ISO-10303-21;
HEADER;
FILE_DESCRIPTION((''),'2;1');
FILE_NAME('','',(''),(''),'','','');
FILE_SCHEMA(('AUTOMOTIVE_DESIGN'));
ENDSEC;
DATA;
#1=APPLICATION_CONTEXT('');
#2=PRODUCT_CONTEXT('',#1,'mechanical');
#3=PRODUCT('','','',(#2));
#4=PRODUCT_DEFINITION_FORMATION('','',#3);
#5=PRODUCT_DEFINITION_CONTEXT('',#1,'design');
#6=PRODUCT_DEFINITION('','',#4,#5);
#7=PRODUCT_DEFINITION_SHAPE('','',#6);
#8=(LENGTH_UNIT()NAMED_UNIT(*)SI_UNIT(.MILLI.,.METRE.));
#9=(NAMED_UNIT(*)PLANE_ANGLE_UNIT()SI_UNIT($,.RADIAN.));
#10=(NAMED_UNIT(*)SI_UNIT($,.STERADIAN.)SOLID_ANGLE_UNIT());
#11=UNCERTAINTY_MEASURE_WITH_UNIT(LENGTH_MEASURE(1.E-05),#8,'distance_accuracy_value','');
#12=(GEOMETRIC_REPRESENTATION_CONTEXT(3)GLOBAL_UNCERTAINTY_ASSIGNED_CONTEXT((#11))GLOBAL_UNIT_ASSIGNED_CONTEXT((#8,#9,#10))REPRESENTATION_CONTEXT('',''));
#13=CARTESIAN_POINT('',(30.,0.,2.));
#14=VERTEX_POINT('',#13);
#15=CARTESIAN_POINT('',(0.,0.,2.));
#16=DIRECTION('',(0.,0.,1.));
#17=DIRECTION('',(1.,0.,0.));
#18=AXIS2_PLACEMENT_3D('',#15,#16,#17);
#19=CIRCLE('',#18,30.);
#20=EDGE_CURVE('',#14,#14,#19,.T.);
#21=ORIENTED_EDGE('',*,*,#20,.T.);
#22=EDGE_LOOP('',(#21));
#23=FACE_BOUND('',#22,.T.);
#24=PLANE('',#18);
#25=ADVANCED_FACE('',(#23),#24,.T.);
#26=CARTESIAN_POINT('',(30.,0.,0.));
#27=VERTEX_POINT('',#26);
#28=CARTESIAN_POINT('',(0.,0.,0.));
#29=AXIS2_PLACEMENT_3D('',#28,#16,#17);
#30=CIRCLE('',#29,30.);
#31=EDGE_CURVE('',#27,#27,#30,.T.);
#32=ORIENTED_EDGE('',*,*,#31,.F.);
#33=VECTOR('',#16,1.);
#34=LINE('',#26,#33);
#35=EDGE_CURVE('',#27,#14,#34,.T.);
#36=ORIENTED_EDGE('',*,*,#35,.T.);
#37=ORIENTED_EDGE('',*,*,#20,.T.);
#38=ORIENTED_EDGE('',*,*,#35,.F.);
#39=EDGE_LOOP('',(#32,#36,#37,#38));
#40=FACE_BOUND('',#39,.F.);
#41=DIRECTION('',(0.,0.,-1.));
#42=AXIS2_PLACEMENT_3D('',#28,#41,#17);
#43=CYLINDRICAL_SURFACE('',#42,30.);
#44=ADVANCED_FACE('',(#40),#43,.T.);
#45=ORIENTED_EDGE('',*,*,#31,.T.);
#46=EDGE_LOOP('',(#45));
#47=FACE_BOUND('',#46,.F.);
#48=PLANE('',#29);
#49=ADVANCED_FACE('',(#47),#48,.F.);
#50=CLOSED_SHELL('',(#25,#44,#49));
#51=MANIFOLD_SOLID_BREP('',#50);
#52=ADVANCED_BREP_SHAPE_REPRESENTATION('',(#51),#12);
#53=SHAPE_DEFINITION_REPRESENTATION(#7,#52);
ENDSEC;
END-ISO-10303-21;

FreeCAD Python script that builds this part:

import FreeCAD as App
import Part
import Sketcher

V = App.Vector

doc = App.newDocument("Part")
body = doc.addObject("PartDesign::Body", "Body")

sketch1 = body.newObject("Sketcher::SketchObject", "Sketch")
sketch1.AttachmentSupport = (doc.getObject("XY_Plane"), [""])
sketch1.MapMode = "FlatFace"
sketch1.addGeometry(Part.Circle(V(0, 0, 0), V(0, 0, 1), 30), False)
sketch1.addConstraint(Sketcher.Constraint("Coincident", 0, 3, -1, 1))
sketch1.addConstraint(Sketcher.Constraint("Diameter", 0, 60.0))
pad1 = body.newObject("PartDesign::Pad", "Pad")
pad1.Profile = sketch1
pad1.Length = 2

doc.recompute()
